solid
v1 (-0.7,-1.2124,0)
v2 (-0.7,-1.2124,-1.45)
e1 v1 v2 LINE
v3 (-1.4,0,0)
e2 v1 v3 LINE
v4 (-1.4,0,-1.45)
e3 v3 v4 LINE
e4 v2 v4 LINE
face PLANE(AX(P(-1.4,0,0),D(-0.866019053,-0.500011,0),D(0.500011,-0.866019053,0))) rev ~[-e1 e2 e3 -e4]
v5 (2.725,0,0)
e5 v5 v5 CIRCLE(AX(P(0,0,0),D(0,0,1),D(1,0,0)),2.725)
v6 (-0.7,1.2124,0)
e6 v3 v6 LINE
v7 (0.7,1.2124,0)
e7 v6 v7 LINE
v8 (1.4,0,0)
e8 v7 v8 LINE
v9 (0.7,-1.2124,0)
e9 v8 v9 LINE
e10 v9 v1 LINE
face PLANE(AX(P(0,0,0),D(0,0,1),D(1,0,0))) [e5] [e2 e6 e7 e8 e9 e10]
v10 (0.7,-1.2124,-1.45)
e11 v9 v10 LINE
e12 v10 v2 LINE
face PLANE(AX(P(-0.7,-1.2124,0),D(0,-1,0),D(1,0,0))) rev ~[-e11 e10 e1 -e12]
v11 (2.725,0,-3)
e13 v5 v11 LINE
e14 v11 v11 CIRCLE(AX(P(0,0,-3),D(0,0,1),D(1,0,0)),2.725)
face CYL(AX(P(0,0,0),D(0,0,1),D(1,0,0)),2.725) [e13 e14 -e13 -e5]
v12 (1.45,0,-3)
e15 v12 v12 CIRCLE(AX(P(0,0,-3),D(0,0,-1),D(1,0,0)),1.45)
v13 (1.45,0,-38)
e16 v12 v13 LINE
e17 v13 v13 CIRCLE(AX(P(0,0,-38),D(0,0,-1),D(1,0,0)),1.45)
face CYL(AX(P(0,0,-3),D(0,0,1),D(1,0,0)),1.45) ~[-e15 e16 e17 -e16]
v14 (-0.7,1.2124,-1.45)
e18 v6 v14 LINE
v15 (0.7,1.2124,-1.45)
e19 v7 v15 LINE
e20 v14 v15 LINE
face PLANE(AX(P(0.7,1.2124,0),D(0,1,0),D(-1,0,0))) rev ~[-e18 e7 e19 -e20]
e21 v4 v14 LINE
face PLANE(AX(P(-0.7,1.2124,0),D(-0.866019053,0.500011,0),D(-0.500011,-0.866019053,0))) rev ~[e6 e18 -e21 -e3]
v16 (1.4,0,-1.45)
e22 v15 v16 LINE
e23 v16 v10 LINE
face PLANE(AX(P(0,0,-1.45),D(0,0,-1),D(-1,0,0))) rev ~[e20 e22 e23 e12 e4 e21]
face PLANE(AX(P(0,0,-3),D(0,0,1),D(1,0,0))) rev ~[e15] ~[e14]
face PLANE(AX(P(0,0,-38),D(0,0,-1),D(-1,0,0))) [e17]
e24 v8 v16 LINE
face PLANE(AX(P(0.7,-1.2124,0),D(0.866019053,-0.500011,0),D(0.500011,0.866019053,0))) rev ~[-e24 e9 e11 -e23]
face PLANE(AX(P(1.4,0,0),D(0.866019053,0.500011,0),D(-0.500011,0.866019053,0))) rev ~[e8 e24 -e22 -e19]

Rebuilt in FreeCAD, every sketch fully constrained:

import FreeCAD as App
import Part
import Sketcher
Q = App.Units.Quantity


def add_polygon(sketch, points):
    """Adds a closed chain of lines whose ends are joined by coincident constraints."""
    first, n = sketch.GeometryCount, len(points)
    for a, b in zip(points, points[1:] + points[:1]):
        sketch.addGeometry(Part.LineSegment(App.Vector(*a, 0), App.Vector(*b, 0)), False)
    for i in range(n):
        sketch.addConstraint(Sketcher.Constraint("Coincident", first + i, 2, first + (i + 1) % n, 1))

doc = App.newDocument("Part")
body = doc.addObject("PartDesign::Body", "Body")

sketch1 = body.newObject("Sketcher::SketchObject", "Sketch")
sketch1.AttachmentSupport = (doc.getObject("XY_Plane"), [""])
sketch1.MapMode = "FlatFace"
sketch1.addGeometry(Part.Circle(App.Vector(0, 0, 0), App.Vector(0, 0, 1), 2.7), False)
sketch1.addConstraint(Sketcher.Constraint("Coincident", 0, 3, -1, 1))
sketch1.addConstraint(Sketcher.Constraint("Diameter", 0, Q("5.45 mm")))
pad1 = body.newObject("PartDesign::Pad", "Pad")
pad1.Profile = sketch1
pad1.Length = 3
pad1.Reversed = True

sketch2 = body.newObject("Sketcher::SketchObject", "Sketch001")
sketch2.AttachmentSupport = (doc.getObject("XY_Plane"), [""])
sketch2.MapMode = "FlatFace"
add_polygon(sketch2, [(-1.4, 0), (-0.7, -1.2), (0.7, -1.2), (1.4, 0), (0.7, 1.2), (-0.7, 1.2)])
sketch2.addConstraint(Sketcher.Constraint("Horizontal", 1))
sketch2.addConstraint(Sketcher.Constraint("Horizontal", 4))
sketch2.addConstraint(Sketcher.Constraint("Symmetric", 0, 2, 3, 2, -1, 1))
sketch2.addConstraint(Sketcher.Constraint("Symmetric", 2, 2, 5, 2, -1, 1))
sketch2.addConstraint(Sketcher.Constraint("PointOnObject", 2, 2, -1))
sketch2.addConstraint(Sketcher.Constraint("Parallel", 2, 5))
sketch2.addConstraint(Sketcher.Constraint("Vertical", 1, 2, 3, 2))
sketch2.addConstraint(Sketcher.Constraint("Angle", 0, Q("-59.9993 deg")))
sketch2.addConstraint(Sketcher.Constraint("DistanceX", 1, 1, 1, 2, Q("1.4 mm")))
sketch2.addConstraint(Sketcher.Constraint("Distance", 0, Q("1.4 mm")))
pocket1 = body.newObject("PartDesign::Pocket", "Pocket")
pocket1.Profile = sketch2
pocket1.Length = 1.45

sketch3 = body.newObject("Sketcher::SketchObject", "Sketch002")
sketch3.AttachmentSupport = (doc.getObject("XY_Plane"), [""])
sketch3.MapMode = "FlatFace"
sketch3.AttachmentOffset = App.Placement(App.Vector(0, 0, -3), App.Rotation())
sketch3.addGeometry(Part.Circle(App.Vector(0, 0, 0), App.Vector(0, 0, 1), 1.4), False)
sketch3.addConstraint(Sketcher.Constraint("Coincident", 0, 3, -1, 1))
sketch3.addConstraint(Sketcher.Constraint("Diameter", 0, Q("2.9 mm")))
pad2 = body.newObject("PartDesign::Pad", "Pad001")
pad2.Profile = sketch3
pad2.Length = 35
pad2.Reversed = True

doc.recompute()
